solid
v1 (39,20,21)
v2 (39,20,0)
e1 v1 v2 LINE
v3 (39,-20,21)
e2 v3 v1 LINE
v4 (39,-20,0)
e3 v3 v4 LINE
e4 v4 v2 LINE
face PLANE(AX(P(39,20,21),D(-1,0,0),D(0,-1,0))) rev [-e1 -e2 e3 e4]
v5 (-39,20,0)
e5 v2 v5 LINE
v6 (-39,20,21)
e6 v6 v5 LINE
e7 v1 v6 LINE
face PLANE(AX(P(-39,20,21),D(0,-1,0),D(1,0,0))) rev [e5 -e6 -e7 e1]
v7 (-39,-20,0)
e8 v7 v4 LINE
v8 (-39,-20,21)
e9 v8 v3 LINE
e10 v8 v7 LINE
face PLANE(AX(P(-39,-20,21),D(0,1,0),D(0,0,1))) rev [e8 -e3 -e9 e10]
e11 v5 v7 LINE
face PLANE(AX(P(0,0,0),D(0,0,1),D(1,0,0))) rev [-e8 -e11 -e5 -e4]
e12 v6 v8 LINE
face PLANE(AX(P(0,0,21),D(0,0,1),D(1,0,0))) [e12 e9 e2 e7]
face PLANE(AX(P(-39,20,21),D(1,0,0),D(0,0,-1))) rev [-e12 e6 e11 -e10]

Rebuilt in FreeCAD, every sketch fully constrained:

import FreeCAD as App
import Part
import Sketcher

V = App.Vector
Q = App.Units.Quantity


def add_polygon(sketch, points):
    """Adds a closed chain of lines whose ends are joined by coincident constraints."""
    first, n = sketch.GeometryCount, len(points)
    for a, b in zip(points, points[1:] + points[:1]):
        sketch.addGeometry(Part.LineSegment(App.Vector(*a, 0), App.Vector(*b, 0)), False)
    for i in range(n):
        sketch.addConstraint(Sketcher.Constraint("Coincident", first + i, 2, first + (i + 1) % n, 1))

doc = App.newDocument("Part")
params = doc.addObject("Spreadsheet::Sheet", "Params")
for row, (alias, value) in enumerate([
    ("sketch1_width", "78 mm"),
    ("sketch1_height", "40 mm"),
    ("pad1_length", "21 mm"),
], start=1):
    params.set(f"A{row}", alias)
    params.set(f"B{row}", "=" + value)
    params.setAlias(f"B{row}", alias)

body = doc.addObject("PartDesign::Body", "Body")

# Sketch on XY plane
sketch1 = body.newObject("Sketcher::SketchObject", "Sketch")
sketch1.AttachmentSupport = (doc.getObject("XY_Plane"), [""])
sketch1.MapMode = "FlatFace"
add_polygon(sketch1, [(-39, 20), (-39, -20), (39, -20), (39, 20)])  # lines 0-3
sketch1.addConstraint(Sketcher.Constraint("Vertical", 0))
sketch1.addConstraint(Sketcher.Constraint("Horizontal", 1))
sketch1.addConstraint(Sketcher.Constraint("Vertical", 2))
sketch1.addConstraint(Sketcher.Constraint("Horizontal", 3))
sketch1.addConstraint(Sketcher.Constraint("Symmetric", 0, 2, 2, 2, -1, 1))
sketch1.addConstraint(Sketcher.Constraint("DistanceX", 1, 1, 1, 2, Q("78 mm")))
sketch1.addConstraint(Sketcher.Constraint("DistanceY", 0, 2, 0, 1, Q("40 mm")))
sketch1.setExpression("Constraints[9]", "Params.sketch1_width")
sketch1.setExpression("Constraints[10]", "Params.sketch1_height")
pad1 = body.newObject("PartDesign::Pad", "Pad")
pad1.Profile = sketch1
pad1.setExpression("Length", "Params.pad1_length")

doc.recompute()
